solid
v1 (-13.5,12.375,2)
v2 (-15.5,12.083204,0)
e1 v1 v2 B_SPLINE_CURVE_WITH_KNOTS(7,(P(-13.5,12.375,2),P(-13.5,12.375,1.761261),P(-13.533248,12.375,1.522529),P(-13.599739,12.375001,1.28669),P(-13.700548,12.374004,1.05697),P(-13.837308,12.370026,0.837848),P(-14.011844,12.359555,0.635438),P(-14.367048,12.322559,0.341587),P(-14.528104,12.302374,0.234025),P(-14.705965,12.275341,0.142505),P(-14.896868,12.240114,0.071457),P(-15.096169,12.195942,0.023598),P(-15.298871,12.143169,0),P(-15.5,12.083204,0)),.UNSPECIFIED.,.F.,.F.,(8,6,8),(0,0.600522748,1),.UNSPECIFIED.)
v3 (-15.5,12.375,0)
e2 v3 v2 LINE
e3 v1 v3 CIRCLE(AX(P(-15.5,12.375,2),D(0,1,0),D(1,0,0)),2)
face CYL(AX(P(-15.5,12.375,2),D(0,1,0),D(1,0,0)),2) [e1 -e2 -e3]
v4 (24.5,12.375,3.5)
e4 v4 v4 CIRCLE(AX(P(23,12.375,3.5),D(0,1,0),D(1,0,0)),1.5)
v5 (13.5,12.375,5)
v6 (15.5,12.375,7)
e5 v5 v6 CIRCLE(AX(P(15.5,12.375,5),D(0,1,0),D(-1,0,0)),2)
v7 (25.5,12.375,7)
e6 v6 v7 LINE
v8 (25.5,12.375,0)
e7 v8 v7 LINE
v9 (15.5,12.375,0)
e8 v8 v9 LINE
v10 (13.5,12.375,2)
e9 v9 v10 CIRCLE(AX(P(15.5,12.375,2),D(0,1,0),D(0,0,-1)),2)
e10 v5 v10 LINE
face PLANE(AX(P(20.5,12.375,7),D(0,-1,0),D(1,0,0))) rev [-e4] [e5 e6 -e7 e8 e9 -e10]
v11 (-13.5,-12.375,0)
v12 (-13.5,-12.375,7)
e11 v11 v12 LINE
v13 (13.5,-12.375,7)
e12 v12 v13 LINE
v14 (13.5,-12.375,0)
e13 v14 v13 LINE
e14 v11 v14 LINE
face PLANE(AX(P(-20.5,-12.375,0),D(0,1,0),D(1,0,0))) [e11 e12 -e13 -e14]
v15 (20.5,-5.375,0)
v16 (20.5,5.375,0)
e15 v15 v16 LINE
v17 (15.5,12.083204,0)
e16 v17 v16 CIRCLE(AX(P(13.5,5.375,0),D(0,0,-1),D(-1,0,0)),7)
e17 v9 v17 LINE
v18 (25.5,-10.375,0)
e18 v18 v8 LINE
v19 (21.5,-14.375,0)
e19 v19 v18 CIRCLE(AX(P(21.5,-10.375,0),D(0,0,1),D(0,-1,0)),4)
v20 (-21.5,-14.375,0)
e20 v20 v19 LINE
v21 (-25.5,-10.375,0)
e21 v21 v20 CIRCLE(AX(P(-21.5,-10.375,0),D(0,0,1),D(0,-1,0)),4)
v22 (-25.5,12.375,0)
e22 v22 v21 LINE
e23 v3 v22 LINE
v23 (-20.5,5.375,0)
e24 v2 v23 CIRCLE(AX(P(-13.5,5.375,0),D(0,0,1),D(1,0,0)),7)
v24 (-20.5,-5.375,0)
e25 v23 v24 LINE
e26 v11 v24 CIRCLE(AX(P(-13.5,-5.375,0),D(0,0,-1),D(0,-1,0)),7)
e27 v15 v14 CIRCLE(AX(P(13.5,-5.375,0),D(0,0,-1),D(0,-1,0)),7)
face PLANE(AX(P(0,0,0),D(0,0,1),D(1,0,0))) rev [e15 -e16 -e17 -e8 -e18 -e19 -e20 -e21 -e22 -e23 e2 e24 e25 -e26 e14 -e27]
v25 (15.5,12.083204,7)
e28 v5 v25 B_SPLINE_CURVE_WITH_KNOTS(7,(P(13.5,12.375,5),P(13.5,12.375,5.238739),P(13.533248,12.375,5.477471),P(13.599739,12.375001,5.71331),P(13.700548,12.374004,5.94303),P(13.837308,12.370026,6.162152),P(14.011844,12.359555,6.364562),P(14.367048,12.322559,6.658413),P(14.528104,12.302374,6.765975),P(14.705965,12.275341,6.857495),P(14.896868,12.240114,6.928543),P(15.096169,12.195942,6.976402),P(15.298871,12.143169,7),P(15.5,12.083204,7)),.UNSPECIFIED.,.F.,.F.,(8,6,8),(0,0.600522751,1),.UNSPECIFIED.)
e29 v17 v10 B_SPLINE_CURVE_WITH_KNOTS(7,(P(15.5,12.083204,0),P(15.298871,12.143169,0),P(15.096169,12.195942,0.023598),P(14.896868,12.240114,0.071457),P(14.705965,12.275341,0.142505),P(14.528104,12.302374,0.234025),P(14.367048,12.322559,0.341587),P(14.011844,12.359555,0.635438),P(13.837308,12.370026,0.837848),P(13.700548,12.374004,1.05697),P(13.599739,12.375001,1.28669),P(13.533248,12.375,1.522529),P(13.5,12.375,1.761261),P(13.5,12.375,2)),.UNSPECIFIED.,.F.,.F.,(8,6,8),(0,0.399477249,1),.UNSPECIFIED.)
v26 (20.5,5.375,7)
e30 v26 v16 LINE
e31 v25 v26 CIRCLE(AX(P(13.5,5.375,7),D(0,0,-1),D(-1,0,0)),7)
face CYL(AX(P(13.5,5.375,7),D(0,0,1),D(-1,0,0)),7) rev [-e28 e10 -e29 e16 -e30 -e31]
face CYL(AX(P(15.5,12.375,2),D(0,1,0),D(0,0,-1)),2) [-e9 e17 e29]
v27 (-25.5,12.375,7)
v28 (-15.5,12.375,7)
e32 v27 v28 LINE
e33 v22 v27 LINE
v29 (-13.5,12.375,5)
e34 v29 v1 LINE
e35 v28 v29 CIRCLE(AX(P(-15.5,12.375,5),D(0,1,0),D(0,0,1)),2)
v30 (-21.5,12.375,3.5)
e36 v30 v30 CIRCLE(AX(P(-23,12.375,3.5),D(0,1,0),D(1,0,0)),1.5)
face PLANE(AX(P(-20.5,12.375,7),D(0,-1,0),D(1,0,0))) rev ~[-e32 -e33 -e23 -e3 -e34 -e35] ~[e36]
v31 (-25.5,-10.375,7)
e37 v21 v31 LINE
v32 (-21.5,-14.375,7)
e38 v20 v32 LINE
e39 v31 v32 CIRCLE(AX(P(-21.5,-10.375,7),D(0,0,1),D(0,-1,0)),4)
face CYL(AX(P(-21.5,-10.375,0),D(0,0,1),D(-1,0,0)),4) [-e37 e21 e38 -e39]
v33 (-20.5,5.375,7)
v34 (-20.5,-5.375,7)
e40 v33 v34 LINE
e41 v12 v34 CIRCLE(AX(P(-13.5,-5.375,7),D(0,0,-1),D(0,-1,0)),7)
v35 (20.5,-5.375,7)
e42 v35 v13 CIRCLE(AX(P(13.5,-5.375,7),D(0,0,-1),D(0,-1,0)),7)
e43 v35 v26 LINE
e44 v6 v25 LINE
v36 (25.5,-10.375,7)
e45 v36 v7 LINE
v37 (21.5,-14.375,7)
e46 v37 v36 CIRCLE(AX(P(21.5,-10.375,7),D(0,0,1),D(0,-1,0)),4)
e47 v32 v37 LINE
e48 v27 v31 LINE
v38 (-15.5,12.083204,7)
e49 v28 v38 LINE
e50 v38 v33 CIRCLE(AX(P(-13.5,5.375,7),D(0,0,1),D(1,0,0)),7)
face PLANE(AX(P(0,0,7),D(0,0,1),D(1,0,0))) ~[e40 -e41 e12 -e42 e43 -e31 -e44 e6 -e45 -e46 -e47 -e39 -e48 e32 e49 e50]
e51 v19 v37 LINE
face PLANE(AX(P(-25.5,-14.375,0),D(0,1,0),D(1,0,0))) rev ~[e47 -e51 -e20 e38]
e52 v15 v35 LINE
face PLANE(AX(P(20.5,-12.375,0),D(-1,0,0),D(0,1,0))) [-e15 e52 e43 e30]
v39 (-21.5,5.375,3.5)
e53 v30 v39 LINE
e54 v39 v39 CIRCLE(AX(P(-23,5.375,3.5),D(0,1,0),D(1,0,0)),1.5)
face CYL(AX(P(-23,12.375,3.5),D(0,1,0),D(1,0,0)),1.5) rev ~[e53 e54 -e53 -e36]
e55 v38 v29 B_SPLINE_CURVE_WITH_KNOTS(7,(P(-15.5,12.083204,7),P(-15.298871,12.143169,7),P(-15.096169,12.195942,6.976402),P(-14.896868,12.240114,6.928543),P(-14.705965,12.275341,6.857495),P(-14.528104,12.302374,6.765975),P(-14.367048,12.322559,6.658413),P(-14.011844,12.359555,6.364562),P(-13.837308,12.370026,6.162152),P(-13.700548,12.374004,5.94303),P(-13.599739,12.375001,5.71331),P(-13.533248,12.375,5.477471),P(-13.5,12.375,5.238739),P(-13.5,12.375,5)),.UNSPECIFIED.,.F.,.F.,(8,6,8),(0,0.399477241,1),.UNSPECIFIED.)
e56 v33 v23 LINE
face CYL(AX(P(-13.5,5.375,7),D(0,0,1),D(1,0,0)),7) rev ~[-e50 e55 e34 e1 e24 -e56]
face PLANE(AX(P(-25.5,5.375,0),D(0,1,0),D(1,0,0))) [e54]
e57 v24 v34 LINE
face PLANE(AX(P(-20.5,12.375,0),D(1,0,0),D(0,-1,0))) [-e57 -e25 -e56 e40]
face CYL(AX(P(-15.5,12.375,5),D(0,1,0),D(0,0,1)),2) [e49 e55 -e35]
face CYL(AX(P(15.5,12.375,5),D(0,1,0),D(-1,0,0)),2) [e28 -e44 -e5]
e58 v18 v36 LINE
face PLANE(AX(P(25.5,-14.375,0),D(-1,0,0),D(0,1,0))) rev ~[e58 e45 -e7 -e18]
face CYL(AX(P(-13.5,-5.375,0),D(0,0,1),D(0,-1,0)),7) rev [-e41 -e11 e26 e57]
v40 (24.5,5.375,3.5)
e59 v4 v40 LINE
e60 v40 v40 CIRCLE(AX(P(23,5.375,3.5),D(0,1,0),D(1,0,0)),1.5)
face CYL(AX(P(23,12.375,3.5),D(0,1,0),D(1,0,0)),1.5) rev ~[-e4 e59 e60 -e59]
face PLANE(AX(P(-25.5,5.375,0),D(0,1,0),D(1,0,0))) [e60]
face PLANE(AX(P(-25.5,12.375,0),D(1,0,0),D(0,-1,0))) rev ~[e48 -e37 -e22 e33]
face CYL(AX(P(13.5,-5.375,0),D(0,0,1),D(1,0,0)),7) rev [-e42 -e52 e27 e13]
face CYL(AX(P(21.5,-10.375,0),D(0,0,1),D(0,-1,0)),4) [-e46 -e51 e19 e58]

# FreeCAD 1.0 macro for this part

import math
import FreeCAD as App
import Part
import Sketcher

V = App.Vector
Q = App.Units.Quantity


def edges_at(feature, points):
    """Names of the edges that pass closest to the given points."""
    edges = feature.Shape.Edges
    near = lambda p: min(range(len(edges)), key=lambda i: edges[i].distToShape(Part.Vertex(*p))[0])
    return sorted({f"Edge{near(p) + 1}" for p in points})


def add_polygon(sketch, points):
    """Adds a closed chain of lines whose ends are joined by coincident constraints."""
    first, n = sketch.GeometryCount, len(points)
    for a, b in zip(points, points[1:] + points[:1]):
        sketch.addGeometry(Part.LineSegment(App.Vector(*a, 0), App.Vector(*b, 0)), False)
    for i in range(n):
        sketch.addConstraint(Sketcher.Constraint("Coincident", first + i, 2, first + (i + 1) % n, 1))

doc = App.newDocument("Part")
params = doc.addObject("Spreadsheet::Sheet", "Params")
for row, (alias, value) in enumerate([
    ("sketch1_width", "41 mm"),
    ("sketch1_width2", "51 mm"),
    ("sketch1_height", "24.75 mm"),
    ("pad1_length", "7 mm"),
    ("sketch2_diameter", "3 mm"),
    ("pocket1_length", "7 mm"),
    ("fillet_radius", "7 mm"),
    ("fillet2_radius", "4 mm"),
    ("sketch3_radius", "7 mm"),
    ("pad2_length", "7 mm"),
    ("sketch4_radius", "2 mm"),
    ("pocket2_length", "1 mm"),
], start=1):
    params.set(f"A{row}", alias)
    params.set(f"B{row}", "=" + value)
    params.setAlias(f"B{row}", alias)

body = doc.addObject("PartDesign::Body", "Body")

# Sketch on XY plane
sketch1 = doc.addObject("Sketcher::SketchObject", "Sketch")
body.addObject(sketch1)
sketch1.AttachmentSupport = (doc.XY_Plane, [""])
sketch1.MapMode = "FlatFace"
add_polygon(sketch1, [(26, 12), (20, 12), (20, -12), (-20, -12), (-20, 12), (-26, 12), (-26, -14), (26, -14)])  # lines 0-7
sketch1.addConstraint(Sketcher.Constraint("Horizontal", 0))
sketch1.addConstraint(Sketcher.Constraint("Vertical", 1))
sketch1.addConstraint(Sketcher.Constraint("Horizontal", 2))
sketch1.addConstraint(Sketcher.Constraint("Vertical", 3))
sketch1.addConstraint(Sketcher.Constraint("Horizontal", 4))
sketch1.addConstraint(Sketcher.Constraint("Vertical", 5))
sketch1.addConstraint(Sketcher.Constraint("Horizontal", 6))
sketch1.addConstraint(Sketcher.Constraint("Vertical", 7))
sketch1.addConstraint(Sketcher.Constraint("Symmetric", 0, 2, 2, 2, -1, 1))
sketch1.addConstraint(Sketcher.Constraint("Symmetric", 4, 2, 7, 2, -2))
sketch1.addConstraint(Sketcher.Constraint("DistanceX", 2, 2, 2, 1, Q("41 mm")))
sketch1.addConstraint(Sketcher.Constraint("DistanceX", 6, 1, 6, 2, Q("51 mm")))
sketch1.addConstraint(Sketcher.Constraint("DistanceY", 1, 2, 1, 1, Q("24.75 mm")))
sketch1.addConstraint(Sketcher.Constraint("DistanceY", 5, 2, 2, 2, Q("2 mm")))
sketch1.setExpression("Constraints[18]", "Params.sketch1_width")
sketch1.setExpression("Constraints[19]", "Params.sketch1_width2")
sketch1.setExpression("Constraints[20]", "Params.sketch1_height")
pad1 = doc.addObject("PartDesign::Pad", "Pad")
body.addObject(pad1)
pad1.Profile = sketch1
pad1.setExpression("Length", "Params.pad1_length")

# Sketch on XZ plane
sketch2 = doc.addObject("Sketcher::SketchObject", "Sketch001")
body.addObject(sketch2)
sketch2.AttachmentSupport = (doc.XZ_Plane, [""])
sketch2.MapMode = "FlatFace"
sketch2.AttachmentOffset = App.Placement(V(0, 0, -12.375), App.Rotation())
sketch2.addGeometry(Part.Circle(V(-23, 3.5, 0), V(0, 0, 1), 1.5), False)
sketch2.addGeometry(Part.Circle(V(23, 3.5, 0), V(0, 0, 1), 1.5), False)
sketch2.addConstraint(Sketcher.Constraint("Equal", 0, 1))
sketch2.addConstraint(Sketcher.Constraint("Symmetric", 0, 3, 1, 3, -2))
sketch2.addConstraint(Sketcher.Constraint("Diameter", 0, Q("3 mm")))
sketch2.addConstraint(Sketcher.Constraint("DistanceX", 0, 3, -1, 1, Q("23 mm")))
sketch2.addConstraint(Sketcher.Constraint("DistanceY", -1, 1, 0, 3, Q("3.5 mm")))
sketch2.setExpression("Constraints[2]", "Params.sketch2_diameter")
pocket1 = doc.addObject("PartDesign::Pocket", "Pocket")
body.addObject(pocket1)
pocket1.Profile = sketch2
pocket1.setExpression("Length", "Params.pocket1_length")
pocket1.Reversed = True
doc.recompute()

fillet = doc.addObject("PartDesign::Fillet", "Fillet")
body.addObject(fillet)
fillet.Base = (pocket1, edges_at(pocket1, [(-20.5, -12.375, 3.5), (20.5, -12.375, 3.5)]))
fillet.setExpression("Radius", "Params.fillet_radius")
doc.recompute()

fillet2 = doc.addObject("PartDesign::Fillet", "Fillet001")
body.addObject(fillet2)
fillet2.Base = (fillet, edges_at(fillet, [(-25.5, -14.375, 3.5), (25.5, -14.375, 3.5)]))
fillet2.setExpression("Radius", "Params.fillet2_radius")

# Sketch on XY plane
sketch3 = doc.addObject("Sketcher::SketchObject", "Sketch002")
body.addObject(sketch3)
sketch3.AttachmentSupport = (doc.XY_Plane, [""])
sketch3.MapMode = "FlatFace"
sketch3.AttachmentOffset = App.Placement(V(0, 0, 7), App.Rotation())
sketch3.addGeometry(Part.ArcOfCircle(Part.Circle(V(-14, 5, 0), V(0, 0, 1), 7), math.radians(90), math.radians(180)), False)
sketch3.addGeometry(Part.LineSegment(V(-14, 12, 0), V(-20, 12, 0)), False)
sketch3.addGeometry(Part.LineSegment(V(-20, 12, 0), V(-20, 5, 0)), False)
sketch3.addConstraint(Sketcher.Constraint("Tangent", 0, 1, 1, 1))
sketch3.addConstraint(Sketcher.Constraint("Coincident", 1, 2, 2, 1))
sketch3.addConstraint(Sketcher.Constraint("Tangent", 2, 2, 0, 2))
sketch3.addConstraint(Sketcher.Constraint("Horizontal", 1))
sketch3.addConstraint(Sketcher.Constraint("Vertical", 2))
sketch3.addConstraint(Sketcher.Constraint("Radius", 0, Q("7 mm")))
sketch3.addConstraint(Sketcher.Constraint("DistanceX", 0, 3, -1, 1, Q("13.5 mm")))
sketch3.addConstraint(Sketcher.Constraint("DistanceY", -1, 1, 0, 3, Q("5.375 mm")))
sketch3.setExpression("Constraints[5]", "Params.sketch3_radius")
pad2 = doc.addObject("PartDesign::Pad", "Pad001")
body.addObject(pad2)
pad2.Profile = sketch3
pad2.setExpression("Length", "Params.pad2_length")
pad2.Reversed = True
doc.recompute()

mirrored = doc.addObject("PartDesign::Mirrored", "Mirrored")
body.addObject(mirrored)
mirrored.Originals = [pad2]
mirrored.MirrorPlane = (doc.YZ_Plane, [""])
body.Tip = mirrored

# Sketch on XZ plane
sketch4 = doc.addObject("Sketcher::SketchObject", "Sketch003")
body.addObject(sketch4)
sketch4.AttachmentSupport = (doc.XZ_Plane, [""])
sketch4.MapMode = "FlatFace"
sketch4.AttachmentOffset = App.Placement(V(0, 0, -12.375), App.Rotation())
sketch4.addGeometry(Part.ArcOfCircle(Part.Circle(V(-15.5, 2, 0), V(0, 0, 1), 2), math.radians(-90), math.radians(0)), False)
sketch4.addGeometry(Part.LineSegment(V(-13.5, 2, 0), V(-13.5, 0, 0)), False)
sketch4.addGeometry(Part.LineSegment(V(-13.5, 0, 0), V(-15.5, 0, 0)), False)
sketch4.addGeometry(Part.LineSegment(V(-13.5, 7, 0), V(-13.5, 5, 0)), False)
sketch4.addGeometry(Part.ArcOfCircle(Part.Circle(V(-15.5, 5, 0), V(0, 0, 1), 2), math.radians(0), math.radians(90)), False)
sketch4.addGeometry(Part.LineSegment(V(-15.5, 7, 0), V(-13.5, 7, 0)), False)
sketch4.addGeometry(Part.ArcOfCircle(Part.Circle(V(15.5, 2, 0), V(0, 0, 1), 2), math.radians(180), math.radians(270)), False)
sketch4.addGeometry(Part.LineSegment(V(15.5, 0, 0), V(13.5, 0, 0)), False)
sketch4.addGeometry(Part.LineSegment(V(13.5, 0, 0), V(13.5, 2, 0)), False)
sketch4.addGeometry(Part.ArcOfCircle(Part.Circle(V(15.5, 5, 0), V(0, 0, 1), 2), math.radians(90), math.radians(180)), False)
sketch4.addGeometry(Part.LineSegment(V(13.5, 5, 0), V(13.5, 7, 0)), False)
sketch4.addGeometry(Part.LineSegment(V(13.5, 7, 0), V(15.5, 7, 0)), False)
sketch4.addConstraint(Sketcher.Constraint("Tangent", 0, 2, 1, 1))
sketch4.addConstraint(Sketcher.Constraint("Coincident", 1, 2, 2, 1))
sketch4.addConstraint(Sketcher.Constraint("Tangent", 2, 2, 0, 1))
sketch4.addConstraint(Sketcher.Constraint("Tangent", 3, 2, 4, 1))
sketch4.addConstraint(Sketcher.Constraint("Tangent", 4, 2, 5, 1))
sketch4.addConstraint(Sketcher.Constraint("Coincident", 5, 2, 3, 1))
sketch4.addConstraint(Sketcher.Constraint("Tangent", 6, 2, 7, 1))
sketch4.addConstraint(Sketcher.Constraint("Coincident", 7, 2, 8, 1))
sketch4.addConstraint(Sketcher.Constraint("Tangent", 8, 2, 6, 1))
sketch4.addConstraint(Sketcher.Constraint("Tangent", 9, 2, 10, 1))
sketch4.addConstraint(Sketcher.Constraint("Coincident", 10, 2, 11, 1))
sketch4.addConstraint(Sketcher.Constraint("Tangent", 11, 2, 9, 1))
sketch4.addConstraint(Sketcher.Constraint("Vertical", 1))
sketch4.addConstraint(Sketcher.Constraint("Horizontal", 2))
sketch4.addConstraint(Sketcher.Constraint("Vertical", 3))
sketch4.addConstraint(Sketcher.Constraint("Horizontal", 5))
sketch4.addConstraint(Sketcher.Constraint("Horizontal", 7))
sketch4.addConstraint(Sketcher.Constraint("Vertical", 8))
sketch4.addConstraint(Sketcher.Constraint("Vertical", 10))
sketch4.addConstraint(Sketcher.Constraint("Horizontal", 11))
sketch4.addConstraint(Sketcher.Constraint("Equal", 0, 4))
sketch4.addConstraint(Sketcher.Constraint("Equal", 4, 6))
sketch4.addConstraint(Sketcher.Constraint("Equal", 6, 9))
sketch4.addConstraint(Sketcher.Constraint("Symmetric", 2, 2, 6, 2, -1, 1))
sketch4.addConstraint(Sketcher.Constraint("Symmetric", 4, 3, 9, 3, -2))
sketch4.addConstraint(Sketcher.Constraint("PointOnObject", 1, 2, -1))
sketch4.addConstraint(Sketcher.Constraint("Vertical", 0, 3, 4, 3))
sketch4.addConstraint(Sketcher.Constraint("Radius", 0, Q("2 mm")))
sketch4.addConstraint(Sketcher.Constraint("DistanceY", -1, 1, 4, 3, Q("5 mm")))
sketch4.addConstraint(Sketcher.Constraint("DistanceX", 0, 3, 6, 3, Q("31 mm")))
sketch4.setExpression("Constraints[27]", "Params.sketch4_radius")
pocket2 = doc.addObject("PartDesign::Pocket", "Pocket001")
body.addObject(pocket2)
pocket2.Profile = sketch4
pocket2.setExpression("Length", "Params.pocket2_length")
pocket2.Reversed = True

doc.recompute()
